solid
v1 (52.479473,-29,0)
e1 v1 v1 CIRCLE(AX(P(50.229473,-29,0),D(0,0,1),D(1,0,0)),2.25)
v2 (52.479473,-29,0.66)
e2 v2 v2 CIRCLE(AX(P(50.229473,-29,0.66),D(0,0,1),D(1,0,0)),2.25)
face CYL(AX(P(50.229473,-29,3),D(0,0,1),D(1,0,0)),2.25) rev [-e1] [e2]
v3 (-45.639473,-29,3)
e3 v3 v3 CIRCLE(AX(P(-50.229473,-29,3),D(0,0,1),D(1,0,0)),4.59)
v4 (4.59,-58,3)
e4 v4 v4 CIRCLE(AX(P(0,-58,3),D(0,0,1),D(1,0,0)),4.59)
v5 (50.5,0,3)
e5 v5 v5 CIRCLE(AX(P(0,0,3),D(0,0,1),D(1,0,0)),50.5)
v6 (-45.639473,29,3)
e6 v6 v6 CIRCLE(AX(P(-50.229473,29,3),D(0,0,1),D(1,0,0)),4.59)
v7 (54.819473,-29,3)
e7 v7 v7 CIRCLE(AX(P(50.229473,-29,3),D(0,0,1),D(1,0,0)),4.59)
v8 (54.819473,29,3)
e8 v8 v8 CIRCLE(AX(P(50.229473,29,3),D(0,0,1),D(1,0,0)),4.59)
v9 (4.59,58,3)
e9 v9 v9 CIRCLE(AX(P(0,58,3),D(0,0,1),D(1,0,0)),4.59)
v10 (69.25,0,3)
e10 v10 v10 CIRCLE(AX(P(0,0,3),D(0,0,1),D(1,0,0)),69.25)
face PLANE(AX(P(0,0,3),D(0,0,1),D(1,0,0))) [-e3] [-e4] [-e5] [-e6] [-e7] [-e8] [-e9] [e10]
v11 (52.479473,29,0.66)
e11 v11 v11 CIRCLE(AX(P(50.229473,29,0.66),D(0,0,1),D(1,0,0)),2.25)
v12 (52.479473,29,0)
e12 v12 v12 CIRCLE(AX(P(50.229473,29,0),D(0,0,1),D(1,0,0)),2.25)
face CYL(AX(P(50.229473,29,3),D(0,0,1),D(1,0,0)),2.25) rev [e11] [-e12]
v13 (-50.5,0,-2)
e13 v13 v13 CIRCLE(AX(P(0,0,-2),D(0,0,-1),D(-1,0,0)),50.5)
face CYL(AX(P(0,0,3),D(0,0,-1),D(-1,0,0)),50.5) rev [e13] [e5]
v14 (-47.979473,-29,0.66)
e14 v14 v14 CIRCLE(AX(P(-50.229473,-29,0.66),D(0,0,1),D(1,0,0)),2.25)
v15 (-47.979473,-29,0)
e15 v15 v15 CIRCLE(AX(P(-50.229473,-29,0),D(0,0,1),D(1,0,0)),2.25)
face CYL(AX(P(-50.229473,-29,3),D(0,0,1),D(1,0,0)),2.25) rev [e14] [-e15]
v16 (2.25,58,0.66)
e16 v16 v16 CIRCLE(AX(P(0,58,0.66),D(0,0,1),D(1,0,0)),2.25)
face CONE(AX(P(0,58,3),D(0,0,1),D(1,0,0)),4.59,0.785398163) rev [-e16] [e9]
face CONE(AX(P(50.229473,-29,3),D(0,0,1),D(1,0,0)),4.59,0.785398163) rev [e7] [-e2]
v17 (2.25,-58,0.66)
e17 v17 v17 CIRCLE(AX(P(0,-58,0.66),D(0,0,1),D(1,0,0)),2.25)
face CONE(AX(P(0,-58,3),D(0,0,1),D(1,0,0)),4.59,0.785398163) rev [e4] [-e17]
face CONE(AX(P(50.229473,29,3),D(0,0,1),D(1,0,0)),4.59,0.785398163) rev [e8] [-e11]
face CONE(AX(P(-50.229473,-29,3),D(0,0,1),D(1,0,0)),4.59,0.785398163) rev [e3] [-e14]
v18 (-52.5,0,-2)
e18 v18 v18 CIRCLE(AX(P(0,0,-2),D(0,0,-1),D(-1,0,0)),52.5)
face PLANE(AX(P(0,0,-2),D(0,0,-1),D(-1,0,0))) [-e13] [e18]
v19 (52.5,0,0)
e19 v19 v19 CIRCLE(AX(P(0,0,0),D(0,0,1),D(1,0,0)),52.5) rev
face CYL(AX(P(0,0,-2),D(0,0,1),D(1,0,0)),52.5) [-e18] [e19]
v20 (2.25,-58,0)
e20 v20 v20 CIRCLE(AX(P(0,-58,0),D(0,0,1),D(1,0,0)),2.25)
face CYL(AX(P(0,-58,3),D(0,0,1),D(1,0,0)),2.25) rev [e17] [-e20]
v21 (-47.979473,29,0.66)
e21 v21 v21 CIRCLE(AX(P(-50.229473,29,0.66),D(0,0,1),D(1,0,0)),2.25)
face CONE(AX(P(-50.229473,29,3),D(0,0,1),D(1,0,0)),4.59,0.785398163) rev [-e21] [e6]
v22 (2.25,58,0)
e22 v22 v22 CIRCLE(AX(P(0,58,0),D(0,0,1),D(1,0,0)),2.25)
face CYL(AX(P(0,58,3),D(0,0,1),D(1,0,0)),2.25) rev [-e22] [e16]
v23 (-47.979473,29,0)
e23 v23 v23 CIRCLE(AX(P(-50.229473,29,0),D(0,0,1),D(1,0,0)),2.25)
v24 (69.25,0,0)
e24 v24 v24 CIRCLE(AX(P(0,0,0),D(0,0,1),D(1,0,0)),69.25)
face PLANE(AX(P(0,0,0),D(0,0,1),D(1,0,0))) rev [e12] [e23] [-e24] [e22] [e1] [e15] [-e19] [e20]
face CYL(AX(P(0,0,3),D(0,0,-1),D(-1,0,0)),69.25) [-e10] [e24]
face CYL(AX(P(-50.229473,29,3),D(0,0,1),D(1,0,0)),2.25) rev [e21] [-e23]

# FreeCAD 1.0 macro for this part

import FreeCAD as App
import Part
import Sketcher

V = App.Vector
Q = App.Units.Quantity

doc = App.newDocument("Part")
body = doc.addObject("PartDesign::Body", "Body")

# Sketch on XY plane
sketch1 = doc.addObject("Sketcher::SketchObject", "Sketch")
body.addObject(sketch1)
sketch1.AttachmentSupport = (doc.XY_Plane, [""])
sketch1.MapMode = "FlatFace"
sketch1.addGeometry(Part.Circle(V(0, 0, 0), V(0, 0, 1), 69), False)
sketch1.addGeometry(Part.Circle(V(0, 0, 0), V(0, 0, 1), 50), False)
sketch1.addConstraint(Sketcher.Constraint("Coincident", 0, 3, -1, 1))
sketch1.addConstraint(Sketcher.Constraint("Coincident", 1, 3, -1, 1))
sketch1.addConstraint(Sketcher.Constraint("Diameter", 1, Q("101 mm")))
sketch1.addConstraint(Sketcher.Constraint("Diameter", 0, Q("138.5 mm")))
pad1 = doc.addObject("PartDesign::Pad", "Pad")
body.addObject(pad1)
pad1.Profile = sketch1
pad1.Length = 3

# Sketch on XY plane
sketch2 = doc.addObject("Sketcher::SketchObject", "Sketch001")
body.addObject(sketch2)
sketch2.AttachmentSupport = (doc.XY_Plane, [""])
sketch2.MapMode = "FlatFace"
sketch2.AttachmentOffset = App.Placement(V(0, 0, 3), App.Rotation())
sketch2.addGeometry(Part.Circle(V(0, 58, 0), V(0, 0, 1), 2), False)
sketch2.addConstraint(Sketcher.Constraint("PointOnObject", 0, 3, -2))
sketch2.addConstraint(Sketcher.Constraint("Diameter", 0, Q("4 mm")))
sketch2.addConstraint(Sketcher.Constraint("DistanceY", -1, 1, 0, 3, Q("58 mm")))
pocket1 = doc.addObject("PartDesign::Pocket", "Pocket")
body.addObject(pocket1)
pocket1.Profile = sketch2
pocket1.Length = 10

# Sketch on YZ plane
sketch3 = doc.addObject("Sketcher::SketchObject", "Sketch002")
body.addObject(sketch3)
sketch3.AttachmentSupport = (doc.YZ_Plane, [""])
sketch3.MapMode = "FlatFace"
sketch3.addGeometry(Part.LineSegment(V(58, 0, 0), V(58, 3, 0)), False)
sketch3.addGeometry(Part.LineSegment(V(58, 3, 0), V(53.4, 3, 0)), False)
sketch3.addGeometry(Part.LineSegment(V(53.4, 3, 0), V(55.8, 0.7, 0)), False)
sketch3.addGeometry(Part.LineSegment(V(55.8, 0.7, 0), V(55.8, 0, 0)), False)
sketch3.addGeometry(Part.LineSegment(V(55.8, 0, 0), V(58, 0, 0)), False)
sketch3.addGeometry(Part.LineSegment(V(58, 3, 0), V(58, 0, 0)), True)  # axis
sketch3.addConstraint(Sketcher.Constraint("Coincident", 0, 2, 1, 1))
sketch3.addConstraint(Sketcher.Constraint("Coincident", 1, 2, 2, 1))
sketch3.addConstraint(Sketcher.Constraint("Coincident", 2, 2, 3, 1))
sketch3.addConstraint(Sketcher.Constraint("Coincident", 3, 2, 4, 1))
sketch3.addConstraint(Sketcher.Constraint("Coincident", 4, 2, 0, 1))
sketch3.addConstraint(Sketcher.Constraint("Vertical", 0))
sketch3.addConstraint(Sketcher.Constraint("Horizontal", 1))
sketch3.addConstraint(Sketcher.Constraint("Vertical", 3))
sketch3.addConstraint(Sketcher.Constraint("Horizontal", 4))
sketch3.addConstraint(Sketcher.Constraint("Vertical", 5))
sketch3.addConstraint(Sketcher.Constraint("Coincident", 5, 1, 0, 2))
sketch3.addConstraint(Sketcher.Constraint("PointOnObject", 3, 2, -1))
sketch3.addConstraint(Sketcher.Constraint("PointOnObject", 5, 2, -1))
sketch3.addConstraint(Sketcher.Constraint("DistanceY", 0, 1, 0, 2, Q("3 mm")))
sketch3.addConstraint(Sketcher.Constraint("Angle", 2, Q("-45 deg")))
sketch3.addConstraint(Sketcher.Constraint("DistanceX", -1, 1, 0, 2, Q("58 mm")))
sketch3.addConstraint(Sketcher.Constraint("DistanceX", 1, 2, 1, 1, Q("4.59 mm")))
sketch3.addConstraint(Sketcher.Constraint("DistanceX", 4, 1, 4, 2, Q("2.25 mm")))
groove = doc.addObject("PartDesign::Groove", "Groove")
body.addObject(groove)
groove.Profile = sketch3
groove.ReferenceAxis = (sketch3, ["Axis0"])
groove.Angle = 360
doc.recompute()

polarpattern = doc.addObject("PartDesign::PolarPattern", "PolarPattern")
body.addObject(polarpattern)
polarpattern.Originals = [groove]
polarpattern.Axis = (doc.Z_Axis, [""])
polarpattern.Angle = 360
polarpattern.Occurrences = 6
body.Tip = polarpattern

# Sketch on XY plane
sketch4 = doc.addObject("Sketcher::SketchObject", "Sketch003")
body.addObject(sketch4)
sketch4.AttachmentSupport = (doc.XY_Plane, [""])
sketch4.MapMode = "FlatFace"
sketch4.AttachmentOffset = App.Placement(V(0, 0, -2), App.Rotation())
sketch4.addGeometry(Part.Circle(V(0, 0, 0), V(0, 0, 1), 52), False)
sketch4.addGeometry(Part.Circle(V(0, 0, 0), V(0, 0, 1), 50), False)
sketch4.addConstraint(Sketcher.Constraint("Coincident", 0, 3, -1, 1))
sketch4.addConstraint(Sketcher.Constraint("Coincident", 1, 3, -1, 1))
sketch4.addConstraint(Sketcher.Constraint("Diameter", 0, Q("105 mm")))
sketch4.addConstraint(Sketcher.Constraint("Diameter", 1, Q("101 mm")))
pad2 = doc.addObject("PartDesign::Pad", "Pad001")
body.addObject(pad2)
pad2.Profile = sketch4
pad2.Length = 2

doc.recompute()
